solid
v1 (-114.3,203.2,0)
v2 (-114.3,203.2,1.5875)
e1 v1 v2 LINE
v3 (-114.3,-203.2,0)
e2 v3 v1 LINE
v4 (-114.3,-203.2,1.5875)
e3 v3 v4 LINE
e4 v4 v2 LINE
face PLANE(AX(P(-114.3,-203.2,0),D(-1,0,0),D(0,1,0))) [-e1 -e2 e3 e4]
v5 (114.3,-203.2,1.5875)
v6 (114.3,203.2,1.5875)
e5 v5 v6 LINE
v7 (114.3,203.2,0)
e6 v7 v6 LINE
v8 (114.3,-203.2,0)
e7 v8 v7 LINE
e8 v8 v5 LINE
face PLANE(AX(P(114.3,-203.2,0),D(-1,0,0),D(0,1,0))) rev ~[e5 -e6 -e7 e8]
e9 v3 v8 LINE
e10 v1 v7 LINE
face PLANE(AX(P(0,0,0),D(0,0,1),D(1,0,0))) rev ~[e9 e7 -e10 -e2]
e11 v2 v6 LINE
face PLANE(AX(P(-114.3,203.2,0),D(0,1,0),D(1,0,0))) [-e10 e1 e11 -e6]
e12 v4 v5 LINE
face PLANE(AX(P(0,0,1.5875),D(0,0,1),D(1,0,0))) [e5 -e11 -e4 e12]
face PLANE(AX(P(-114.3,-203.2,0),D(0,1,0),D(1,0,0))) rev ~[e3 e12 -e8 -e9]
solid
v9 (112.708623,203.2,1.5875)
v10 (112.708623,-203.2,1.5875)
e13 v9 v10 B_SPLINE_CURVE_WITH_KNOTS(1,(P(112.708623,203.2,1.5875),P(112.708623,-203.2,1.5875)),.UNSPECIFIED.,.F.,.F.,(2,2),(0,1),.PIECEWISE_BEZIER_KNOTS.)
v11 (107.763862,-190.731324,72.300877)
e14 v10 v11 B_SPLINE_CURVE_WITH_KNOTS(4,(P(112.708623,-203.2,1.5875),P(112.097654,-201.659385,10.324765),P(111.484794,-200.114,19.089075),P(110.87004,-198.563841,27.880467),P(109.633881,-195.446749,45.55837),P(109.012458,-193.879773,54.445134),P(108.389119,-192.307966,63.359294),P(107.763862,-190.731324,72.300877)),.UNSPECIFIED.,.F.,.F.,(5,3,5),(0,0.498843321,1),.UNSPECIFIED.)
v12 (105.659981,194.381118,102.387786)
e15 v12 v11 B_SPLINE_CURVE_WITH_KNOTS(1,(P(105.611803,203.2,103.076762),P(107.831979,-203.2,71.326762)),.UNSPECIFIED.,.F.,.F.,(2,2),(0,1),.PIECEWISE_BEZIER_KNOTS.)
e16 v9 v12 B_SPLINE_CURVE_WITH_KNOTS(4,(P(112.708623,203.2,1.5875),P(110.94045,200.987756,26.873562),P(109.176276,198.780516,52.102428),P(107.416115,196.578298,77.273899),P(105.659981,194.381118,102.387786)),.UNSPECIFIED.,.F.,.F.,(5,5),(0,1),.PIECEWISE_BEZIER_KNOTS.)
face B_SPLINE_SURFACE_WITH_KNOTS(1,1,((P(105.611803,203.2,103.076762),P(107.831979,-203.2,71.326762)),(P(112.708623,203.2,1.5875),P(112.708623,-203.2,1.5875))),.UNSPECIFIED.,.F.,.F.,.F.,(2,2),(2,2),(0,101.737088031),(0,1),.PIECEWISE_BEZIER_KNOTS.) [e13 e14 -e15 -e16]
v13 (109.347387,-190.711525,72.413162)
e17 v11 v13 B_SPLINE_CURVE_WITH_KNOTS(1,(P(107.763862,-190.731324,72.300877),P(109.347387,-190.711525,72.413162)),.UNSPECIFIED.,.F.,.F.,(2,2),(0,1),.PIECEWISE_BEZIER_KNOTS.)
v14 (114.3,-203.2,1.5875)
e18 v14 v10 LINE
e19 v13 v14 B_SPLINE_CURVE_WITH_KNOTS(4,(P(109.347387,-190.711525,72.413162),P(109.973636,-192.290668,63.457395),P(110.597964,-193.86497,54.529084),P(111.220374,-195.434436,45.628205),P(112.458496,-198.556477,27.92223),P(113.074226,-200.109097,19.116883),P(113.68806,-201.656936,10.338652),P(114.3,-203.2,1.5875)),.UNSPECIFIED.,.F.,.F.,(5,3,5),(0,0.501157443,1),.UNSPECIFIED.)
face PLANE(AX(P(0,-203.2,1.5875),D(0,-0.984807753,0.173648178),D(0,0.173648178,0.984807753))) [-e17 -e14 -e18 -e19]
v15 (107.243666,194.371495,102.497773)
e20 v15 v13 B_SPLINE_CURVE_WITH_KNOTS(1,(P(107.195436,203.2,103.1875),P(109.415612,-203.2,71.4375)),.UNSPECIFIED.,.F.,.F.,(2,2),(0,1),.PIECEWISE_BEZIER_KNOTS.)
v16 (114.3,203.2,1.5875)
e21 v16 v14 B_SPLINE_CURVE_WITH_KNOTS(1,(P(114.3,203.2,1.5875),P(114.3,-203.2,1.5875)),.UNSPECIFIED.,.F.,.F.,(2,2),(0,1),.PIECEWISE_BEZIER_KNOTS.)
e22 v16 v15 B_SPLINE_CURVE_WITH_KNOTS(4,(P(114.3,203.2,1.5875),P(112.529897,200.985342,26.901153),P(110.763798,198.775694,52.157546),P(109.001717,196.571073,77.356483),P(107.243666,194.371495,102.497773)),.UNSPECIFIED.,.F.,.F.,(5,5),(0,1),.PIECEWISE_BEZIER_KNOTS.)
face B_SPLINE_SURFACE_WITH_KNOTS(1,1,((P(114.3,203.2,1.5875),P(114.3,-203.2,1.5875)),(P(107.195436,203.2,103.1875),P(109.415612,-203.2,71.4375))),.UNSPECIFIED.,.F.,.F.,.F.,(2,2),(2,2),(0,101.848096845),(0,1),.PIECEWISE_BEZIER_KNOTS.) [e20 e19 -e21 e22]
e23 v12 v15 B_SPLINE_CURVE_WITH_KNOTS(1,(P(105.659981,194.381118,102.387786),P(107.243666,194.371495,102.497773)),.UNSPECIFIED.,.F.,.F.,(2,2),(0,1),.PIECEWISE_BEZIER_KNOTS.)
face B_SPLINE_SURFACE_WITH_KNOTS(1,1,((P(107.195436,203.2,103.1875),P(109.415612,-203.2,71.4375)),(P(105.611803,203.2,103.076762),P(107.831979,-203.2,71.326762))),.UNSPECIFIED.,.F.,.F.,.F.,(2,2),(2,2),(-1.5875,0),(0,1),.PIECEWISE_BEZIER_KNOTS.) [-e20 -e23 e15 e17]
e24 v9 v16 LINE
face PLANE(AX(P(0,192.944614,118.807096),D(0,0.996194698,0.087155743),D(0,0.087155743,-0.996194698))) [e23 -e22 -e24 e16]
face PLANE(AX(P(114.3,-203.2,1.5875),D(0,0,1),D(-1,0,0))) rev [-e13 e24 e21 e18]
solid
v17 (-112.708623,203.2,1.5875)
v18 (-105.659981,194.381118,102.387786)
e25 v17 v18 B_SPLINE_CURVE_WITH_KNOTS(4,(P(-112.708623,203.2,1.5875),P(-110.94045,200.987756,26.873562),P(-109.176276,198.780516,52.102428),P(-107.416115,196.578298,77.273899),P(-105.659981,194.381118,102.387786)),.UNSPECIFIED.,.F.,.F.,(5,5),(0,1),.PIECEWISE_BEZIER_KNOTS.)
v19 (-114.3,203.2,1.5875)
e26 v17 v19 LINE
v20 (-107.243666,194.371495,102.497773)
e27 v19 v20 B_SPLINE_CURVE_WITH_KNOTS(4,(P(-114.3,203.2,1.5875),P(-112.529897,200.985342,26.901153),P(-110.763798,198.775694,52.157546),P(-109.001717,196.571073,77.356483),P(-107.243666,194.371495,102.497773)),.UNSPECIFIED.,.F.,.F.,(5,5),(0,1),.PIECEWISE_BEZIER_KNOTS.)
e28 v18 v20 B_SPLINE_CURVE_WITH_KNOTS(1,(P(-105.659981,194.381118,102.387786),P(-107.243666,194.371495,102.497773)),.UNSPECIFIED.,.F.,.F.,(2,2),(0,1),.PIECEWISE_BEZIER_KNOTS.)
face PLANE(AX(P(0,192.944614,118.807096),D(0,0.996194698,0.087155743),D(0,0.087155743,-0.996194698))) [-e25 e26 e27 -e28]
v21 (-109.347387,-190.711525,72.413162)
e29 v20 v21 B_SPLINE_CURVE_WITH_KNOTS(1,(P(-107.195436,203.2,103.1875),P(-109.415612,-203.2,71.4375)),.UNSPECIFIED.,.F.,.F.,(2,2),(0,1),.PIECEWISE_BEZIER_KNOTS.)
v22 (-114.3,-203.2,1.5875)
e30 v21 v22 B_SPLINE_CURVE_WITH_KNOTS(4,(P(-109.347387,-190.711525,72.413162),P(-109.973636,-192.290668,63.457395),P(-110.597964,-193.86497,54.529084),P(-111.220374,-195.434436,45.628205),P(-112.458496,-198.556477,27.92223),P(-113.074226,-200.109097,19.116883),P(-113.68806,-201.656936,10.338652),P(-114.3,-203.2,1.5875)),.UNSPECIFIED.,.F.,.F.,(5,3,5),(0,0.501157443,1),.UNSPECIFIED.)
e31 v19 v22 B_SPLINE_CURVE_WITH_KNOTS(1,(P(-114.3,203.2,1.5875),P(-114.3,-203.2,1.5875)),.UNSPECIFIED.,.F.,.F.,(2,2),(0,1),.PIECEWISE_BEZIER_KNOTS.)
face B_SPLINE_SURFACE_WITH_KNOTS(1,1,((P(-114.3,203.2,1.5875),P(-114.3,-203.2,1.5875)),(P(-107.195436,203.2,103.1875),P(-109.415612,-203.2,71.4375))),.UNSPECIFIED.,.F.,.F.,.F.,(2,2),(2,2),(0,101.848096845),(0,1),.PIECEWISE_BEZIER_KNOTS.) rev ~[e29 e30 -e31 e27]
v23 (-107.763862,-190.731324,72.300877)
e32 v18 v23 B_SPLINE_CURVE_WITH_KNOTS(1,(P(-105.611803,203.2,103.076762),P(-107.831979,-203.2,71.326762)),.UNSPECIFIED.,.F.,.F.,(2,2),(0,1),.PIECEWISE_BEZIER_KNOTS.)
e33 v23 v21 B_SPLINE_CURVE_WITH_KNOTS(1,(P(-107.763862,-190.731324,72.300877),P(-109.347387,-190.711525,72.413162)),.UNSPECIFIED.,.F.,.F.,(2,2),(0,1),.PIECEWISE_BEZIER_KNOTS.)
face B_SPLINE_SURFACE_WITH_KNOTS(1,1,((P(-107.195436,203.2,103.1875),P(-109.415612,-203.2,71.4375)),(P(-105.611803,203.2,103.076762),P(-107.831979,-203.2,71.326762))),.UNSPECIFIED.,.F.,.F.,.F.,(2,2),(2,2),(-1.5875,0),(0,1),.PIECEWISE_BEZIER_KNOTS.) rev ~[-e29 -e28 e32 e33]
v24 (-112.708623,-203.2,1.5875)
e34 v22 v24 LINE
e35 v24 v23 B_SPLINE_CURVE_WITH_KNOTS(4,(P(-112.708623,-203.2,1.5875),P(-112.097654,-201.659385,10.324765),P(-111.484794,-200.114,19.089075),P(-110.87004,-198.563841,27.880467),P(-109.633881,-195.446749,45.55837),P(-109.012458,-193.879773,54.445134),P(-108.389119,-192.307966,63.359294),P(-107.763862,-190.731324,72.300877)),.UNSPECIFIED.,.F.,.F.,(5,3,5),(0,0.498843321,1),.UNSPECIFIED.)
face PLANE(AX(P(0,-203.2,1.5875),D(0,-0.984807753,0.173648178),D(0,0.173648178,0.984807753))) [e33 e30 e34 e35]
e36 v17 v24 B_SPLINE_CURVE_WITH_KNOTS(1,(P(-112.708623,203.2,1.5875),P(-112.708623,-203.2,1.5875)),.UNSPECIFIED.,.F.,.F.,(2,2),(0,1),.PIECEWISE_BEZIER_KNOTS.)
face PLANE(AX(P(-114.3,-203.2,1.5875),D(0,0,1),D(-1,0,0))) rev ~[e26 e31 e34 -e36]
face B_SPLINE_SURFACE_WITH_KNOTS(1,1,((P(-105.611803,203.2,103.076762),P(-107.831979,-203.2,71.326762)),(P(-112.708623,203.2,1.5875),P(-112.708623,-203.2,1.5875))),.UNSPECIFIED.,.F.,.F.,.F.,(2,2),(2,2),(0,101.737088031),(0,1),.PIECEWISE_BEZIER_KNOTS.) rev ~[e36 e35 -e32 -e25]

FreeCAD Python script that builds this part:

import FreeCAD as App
import Part
import Sketcher
Q = App.Units.Quantity


def add_polygon(sketch, points):
    """Adds a closed chain of lines whose ends are joined by coincident constraints."""
    first, n = sketch.GeometryCount, len(points)
    for a, b in zip(points, points[1:] + points[:1]):
        sketch.addGeometry(Part.LineSegment(App.Vector(*a, 0), App.Vector(*b, 0)), False)
    for i in range(n):
        sketch.addConstraint(Sketcher.Constraint("Coincident", first + i, 2, first + (i + 1) % n, 1))

doc = App.newDocument("Part")
body = doc.addObject("PartDesign::Body", "Body")

# Sketch on XY plane
sketch1 = body.newObject("Sketcher::SketchObject", "Sketch")
sketch1.AttachmentSupport = (doc.getObject("XY_Plane"), [""])
sketch1.MapMode = "FlatFace"
add_polygon(sketch1, [(-114, 203), (-114, -203), (114, -203), (114, 203)])  # lines 0-3
sketch1.addConstraint([
    Sketcher.Constraint("Vertical", 0),
    Sketcher.Constraint("Horizontal", 1),
    Sketcher.Constraint("Vertical", 2),
    Sketcher.Constraint("Horizontal", 3),
    Sketcher.Constraint("Symmetric", 0, 2, 2, 2, -1, 1),
    Sketcher.Constraint("DistanceX", 1, 1, 1, 2, Q("9 in")),
    Sketcher.Constraint("DistanceY", 0, 2, 0, 1, Q("16 in")),
])
pad1 = body.newObject("PartDesign::Pad", "Pad")
pad1.Profile = sketch1
pad1.Length = Q("0.0625 in")
body2 = doc.addObject("PartDesign::Body", "Body001")

# Sketch on XZ plane
sketch2 = body2.newObject("Sketcher::SketchObject", "Sketch001")
sketch2.AttachmentSupport = (doc.getObject("XZ_Plane001"), [""])
sketch2.MapMode = "FlatFace"
sketch2.AttachmentOffset = App.Placement(App.Vector(0, 0, -8 * 25.4), App.Rotation())
add_polygon(sketch2, [(-112.7, 1.6), (-114.3, 1.6), (-107.2, 103.2), (-105.6, 103.1)])  # lines 0-3
sketch2.addConstraint([
    Sketcher.Constraint("Horizontal", 0),
    Sketcher.Constraint("Perpendicular", 1, 2),
    Sketcher.Constraint("Perpendicular", 2, 3),
    Sketcher.Constraint("Angle", 1, Q("86 deg")),
    Sketcher.Constraint("DistanceY", 0, 2, 1, 2, Q("4 in")),
    Sketcher.Constraint("DistanceX", 0, 2, -1, 1, Q("4.5 in")),
    Sketcher.Constraint("Distance", 2, Q("0.0625 in")),
    Sketcher.Constraint("DistanceY", -1, 1, 0, 2, Q("0.0625 in")),
])

# Sketch on XZ plane
sketch3 = body2.newObject("Sketcher::SketchObject", "Sketch002")
sketch3.AttachmentSupport = (doc.getObject("XZ_Plane001"), [""])
sketch3.MapMode = "FlatFace"
sketch3.AttachmentOffset = App.Placement(App.Vector(0, 0, 8 * 25.4), App.Rotation())
add_polygon(sketch3, [(-109.4, 71.4), (-114.3, 1.6), (-112.7, 1.6), (-107.8, 71.3)])  # lines 0-3
sketch3.addConstraint([
    Sketcher.Constraint("Horizontal", 1),
    Sketcher.Constraint("Parallel", 0, 2),
    Sketcher.Constraint("Perpendicular", 2, 3),
    Sketcher.Constraint("Angle", 0, Q("-94 deg")),
    Sketcher.Constraint("DistanceX", 0, 2, -1, 1, Q("4.5 in")),
    Sketcher.Constraint("DistanceY", 1, 2, 3, 2, Q("2.75 in")),
    Sketcher.Constraint("Distance", 3, Q("0.0625 in")),
    Sketcher.Constraint("DistanceY", -1, 1, 0, 2, Q("0.0625 in")),
])

additiveloft = body2.newObject("PartDesign::AdditiveLoft", "AdditiveLoft")
additiveloft.Profile = sketch2
additiveloft.Sections = [sketch3]
body3 = doc.addObject("PartDesign::Body", "Body002")
doc.recompute()

mirroring = doc.addObject("Part::Mirroring", "Mirroring")
mirroring.Source = body2
mirroring.Base = App.Vector(0, 0, 0)
mirroring.Normal = App.Vector(1, 0, 0)
body3.BaseFeature = mirroring
doc.recompute()
body4 = doc.addObject("PartDesign::Body", "Body003")
body4.AllowCompound = True

# Sketch on YZ plane
sketch4 = body4.newObject("Sketcher::SketchObject", "Sketch003")
sketch4.AttachmentSupport = (doc.getObject("YZ_Plane003"), [""])
sketch4.MapMode = "FlatFace"
add_polygon(sketch4, [(193, 119), (203, 2), (203, 119)])  # lines 0-2
add_polygon(sketch4, [(-203, 89), (-203, 2), (-188, 89)])  # lines 3-5
sketch4.addConstraint([
    Sketcher.Constraint("Vertical", 1),
    Sketcher.Constraint("Horizontal", 2),
    Sketcher.Constraint("Vertical", 3),
    Sketcher.Constraint("Horizontal", 5),
    Sketcher.Constraint("Symmetric", 0, 2, 3, 2, -2),
    Sketcher.Constraint("DistanceX", -1, 1, 0, 2, Q("8 in")),
    Sketcher.Constraint("Angle", 0, Q("-85 deg")),
    Sketcher.Constraint("Angle", 4, Q("80 deg")),
    Sketcher.Constraint("DistanceY", -1, 1, 0, 2, Q("0.0625 in")),
    Sketcher.Constraint("DistanceX", 2, 2, 2, 1, Q("10.255386 mm")),
    Sketcher.Constraint("DistanceX", 5, 2, 5, 1, Q("15.337345 mm")),
])
pad2 = body4.newObject("PartDesign::Pad", "Pad001")
pad2.Profile = sketch4
pad2.Type = "TwoLengths"
pad2.Length = Q("8 in")
pad2.Length2 = Q("5.8 in")
pad2.Reversed = True
doc.recompute()

body5 = doc.addObject("PartDesign::Body", "Body004")
body5.BaseFeature = body4
boolean = body2.newObject("PartDesign::Boolean", "Boolean")
boolean.Type = "Cut"
boolean.addObjects([body5])
doc.recompute()

boolean2 = body3.newObject("PartDesign::Boolean", "Boolean001")
boolean2.Type = "Cut"
boolean2.addObjects([body4])
mirroring.Visibility = False

doc.recompute()
